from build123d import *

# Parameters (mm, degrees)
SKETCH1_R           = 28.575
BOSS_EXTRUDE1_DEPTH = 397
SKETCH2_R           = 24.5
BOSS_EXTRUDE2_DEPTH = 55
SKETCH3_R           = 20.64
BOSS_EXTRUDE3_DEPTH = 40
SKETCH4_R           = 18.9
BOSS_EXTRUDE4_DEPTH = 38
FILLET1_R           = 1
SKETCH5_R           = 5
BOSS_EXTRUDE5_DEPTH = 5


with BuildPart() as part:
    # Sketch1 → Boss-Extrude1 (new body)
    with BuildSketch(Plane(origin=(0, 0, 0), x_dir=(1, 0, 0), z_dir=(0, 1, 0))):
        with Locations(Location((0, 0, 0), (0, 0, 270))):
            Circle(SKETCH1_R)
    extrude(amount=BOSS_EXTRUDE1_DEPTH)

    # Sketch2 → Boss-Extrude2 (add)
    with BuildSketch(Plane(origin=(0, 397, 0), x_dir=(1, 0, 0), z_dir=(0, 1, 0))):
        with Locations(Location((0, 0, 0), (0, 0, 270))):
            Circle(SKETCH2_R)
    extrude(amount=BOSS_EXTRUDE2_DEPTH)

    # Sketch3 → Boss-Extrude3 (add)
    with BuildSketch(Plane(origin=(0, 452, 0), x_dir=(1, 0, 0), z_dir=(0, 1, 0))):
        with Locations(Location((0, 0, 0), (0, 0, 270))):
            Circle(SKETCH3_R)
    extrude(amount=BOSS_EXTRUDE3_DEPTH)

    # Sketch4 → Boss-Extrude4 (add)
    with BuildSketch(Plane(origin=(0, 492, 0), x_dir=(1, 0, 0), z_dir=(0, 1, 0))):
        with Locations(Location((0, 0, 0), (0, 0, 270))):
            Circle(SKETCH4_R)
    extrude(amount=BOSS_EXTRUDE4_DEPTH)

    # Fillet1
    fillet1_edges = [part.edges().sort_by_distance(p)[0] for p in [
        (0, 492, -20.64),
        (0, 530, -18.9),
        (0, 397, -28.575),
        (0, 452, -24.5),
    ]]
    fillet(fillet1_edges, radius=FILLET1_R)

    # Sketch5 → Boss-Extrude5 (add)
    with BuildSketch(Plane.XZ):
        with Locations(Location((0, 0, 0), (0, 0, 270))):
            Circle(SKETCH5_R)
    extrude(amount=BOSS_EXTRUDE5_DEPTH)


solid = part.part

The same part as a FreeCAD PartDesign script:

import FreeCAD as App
import Part
import Sketcher
from FreeCAD import Vector


def edges_at(feature, points):
    """Names of the edges that pass closest to the given points."""
    edges = feature.Shape.Edges
    near = lambda p: min(range(len(edges)), key=lambda i: edges[i].distToShape(Part.Vertex(*p))[0])
    return sorted({f"Edge{near(p) + 1}" for p in points})

doc = App.newDocument("Part")
body = doc.addObject("PartDesign::Body", "Body")

# Sketch on XZ plane
sketch1 = body.newObject("Sketcher::SketchObject", "Sketch")
sketch1.AttachmentSupport = (doc.getObject("XZ_Plane"), [""])
sketch1.MapMode = "FlatFace"
sketch1.addGeometry(Part.Circle(Vector(0, 0, 0), Vector(0, 0, 1), 29), False)
sketch1.addConstraint(Sketcher.Constraint("Coincident", 0, 3, -1, 1))
sketch1.addConstraint(Sketcher.Constraint("Diameter", 0, 57.15))
pad1 = body.newObject("PartDesign::Pad", "Pad")
pad1.Profile = sketch1
pad1.Length = 397
pad1.Reversed = True

# Sketch on XZ plane
sketch2 = body.newObject("Sketcher::SketchObject", "Sketch001")
sketch2.AttachmentSupport = (doc.getObject("XZ_Plane"), [""])
sketch2.MapMode = "FlatFace"
sketch2.AttachmentOffset = App.Placement(Vector(0, 0, -397), App.Rotation())
sketch2.addGeometry(Part.Circle(Vector(0, 0, 0), Vector(0, 0, 1), 24), False)
sketch2.addConstraint(Sketcher.Constraint("Coincident", 0, 3, -1, 1))
sketch2.addConstraint(Sketcher.Constraint("Diameter", 0, 49.0))
pad2 = body.newObject("PartDesign::Pad", "Pad001")
pad2.Profile = sketch2
pad2.Length = 55
pad2.Reversed = True

# Sketch on XZ plane
sketch3 = body.newObject("Sketcher::SketchObject", "Sketch002")
sketch3.AttachmentSupport = (doc.getObject("XZ_Plane"), [""])
sketch3.MapMode = "FlatFace"
sketch3.AttachmentOffset = App.Placement(Vector(0, 0, -452), App.Rotation())
sketch3.addGeometry(Part.Circle(Vector(0, 0, 0), Vector(0, 0, 1), 21), False)
sketch3.addConstraint(Sketcher.Constraint("Coincident", 0, 3, -1, 1))
sketch3.addConstraint(Sketcher.Constraint("Diameter", 0, 41.28))
pad3 = body.newObject("PartDesign::Pad", "Pad002")
pad3.Profile = sketch3
pad3.Length = 40
pad3.Reversed = True

# Sketch on XZ plane
sketch4 = body.newObject("Sketcher::SketchObject", "Sketch003")
sketch4.AttachmentSupport = (doc.getObject("XZ_Plane"), [""])
sketch4.MapMode = "FlatFace"
sketch4.AttachmentOffset = App.Placement(Vector(0, 0, -492), App.Rotation())
sketch4.addGeometry(Part.Circle(Vector(0, 0, 0), Vector(0, 0, 1), 19), False)
sketch4.addConstraint(Sketcher.Constraint("Coincident", 0, 3, -1, 1))
sketch4.addConstraint(Sketcher.Constraint("Diameter", 0, 37.8))
pad4 = body.newObject("PartDesign::Pad", "Pad003")
pad4.Profile = sketch4
pad4.Length = 38
pad4.Reversed = True
doc.recompute()

fillet = body.newObject("PartDesign::Fillet", "Fillet")
fillet.Base = (pad4, edges_at(pad4, [
    (0, 492, -20.64),
    (0, 530, -18.9),
    (0, 397, -28.575),
    (0, 452, -24.5),
]))
fillet.Radius = 1

# Sketch on XZ plane
sketch5 = body.newObject("Sketcher::SketchObject", "Sketch004")
sketch5.AttachmentSupport = (doc.getObject("XZ_Plane"), [""])
sketch5.MapMode = "FlatFace"
sketch5.addGeometry(Part.Circle(Vector(0, 0, 0), Vector(0, 0, 1), 5), False)
sketch5.addConstraint(Sketcher.Constraint("Coincident", 0, 3, -1, 1))
sketch5.addConstraint(Sketcher.Constraint("Diameter", 0, 10.0))
pad5 = body.newObject("PartDesign::Pad", "Pad004")
pad5.Profile = sketch5
pad5.Length = 5

doc.recompute()
